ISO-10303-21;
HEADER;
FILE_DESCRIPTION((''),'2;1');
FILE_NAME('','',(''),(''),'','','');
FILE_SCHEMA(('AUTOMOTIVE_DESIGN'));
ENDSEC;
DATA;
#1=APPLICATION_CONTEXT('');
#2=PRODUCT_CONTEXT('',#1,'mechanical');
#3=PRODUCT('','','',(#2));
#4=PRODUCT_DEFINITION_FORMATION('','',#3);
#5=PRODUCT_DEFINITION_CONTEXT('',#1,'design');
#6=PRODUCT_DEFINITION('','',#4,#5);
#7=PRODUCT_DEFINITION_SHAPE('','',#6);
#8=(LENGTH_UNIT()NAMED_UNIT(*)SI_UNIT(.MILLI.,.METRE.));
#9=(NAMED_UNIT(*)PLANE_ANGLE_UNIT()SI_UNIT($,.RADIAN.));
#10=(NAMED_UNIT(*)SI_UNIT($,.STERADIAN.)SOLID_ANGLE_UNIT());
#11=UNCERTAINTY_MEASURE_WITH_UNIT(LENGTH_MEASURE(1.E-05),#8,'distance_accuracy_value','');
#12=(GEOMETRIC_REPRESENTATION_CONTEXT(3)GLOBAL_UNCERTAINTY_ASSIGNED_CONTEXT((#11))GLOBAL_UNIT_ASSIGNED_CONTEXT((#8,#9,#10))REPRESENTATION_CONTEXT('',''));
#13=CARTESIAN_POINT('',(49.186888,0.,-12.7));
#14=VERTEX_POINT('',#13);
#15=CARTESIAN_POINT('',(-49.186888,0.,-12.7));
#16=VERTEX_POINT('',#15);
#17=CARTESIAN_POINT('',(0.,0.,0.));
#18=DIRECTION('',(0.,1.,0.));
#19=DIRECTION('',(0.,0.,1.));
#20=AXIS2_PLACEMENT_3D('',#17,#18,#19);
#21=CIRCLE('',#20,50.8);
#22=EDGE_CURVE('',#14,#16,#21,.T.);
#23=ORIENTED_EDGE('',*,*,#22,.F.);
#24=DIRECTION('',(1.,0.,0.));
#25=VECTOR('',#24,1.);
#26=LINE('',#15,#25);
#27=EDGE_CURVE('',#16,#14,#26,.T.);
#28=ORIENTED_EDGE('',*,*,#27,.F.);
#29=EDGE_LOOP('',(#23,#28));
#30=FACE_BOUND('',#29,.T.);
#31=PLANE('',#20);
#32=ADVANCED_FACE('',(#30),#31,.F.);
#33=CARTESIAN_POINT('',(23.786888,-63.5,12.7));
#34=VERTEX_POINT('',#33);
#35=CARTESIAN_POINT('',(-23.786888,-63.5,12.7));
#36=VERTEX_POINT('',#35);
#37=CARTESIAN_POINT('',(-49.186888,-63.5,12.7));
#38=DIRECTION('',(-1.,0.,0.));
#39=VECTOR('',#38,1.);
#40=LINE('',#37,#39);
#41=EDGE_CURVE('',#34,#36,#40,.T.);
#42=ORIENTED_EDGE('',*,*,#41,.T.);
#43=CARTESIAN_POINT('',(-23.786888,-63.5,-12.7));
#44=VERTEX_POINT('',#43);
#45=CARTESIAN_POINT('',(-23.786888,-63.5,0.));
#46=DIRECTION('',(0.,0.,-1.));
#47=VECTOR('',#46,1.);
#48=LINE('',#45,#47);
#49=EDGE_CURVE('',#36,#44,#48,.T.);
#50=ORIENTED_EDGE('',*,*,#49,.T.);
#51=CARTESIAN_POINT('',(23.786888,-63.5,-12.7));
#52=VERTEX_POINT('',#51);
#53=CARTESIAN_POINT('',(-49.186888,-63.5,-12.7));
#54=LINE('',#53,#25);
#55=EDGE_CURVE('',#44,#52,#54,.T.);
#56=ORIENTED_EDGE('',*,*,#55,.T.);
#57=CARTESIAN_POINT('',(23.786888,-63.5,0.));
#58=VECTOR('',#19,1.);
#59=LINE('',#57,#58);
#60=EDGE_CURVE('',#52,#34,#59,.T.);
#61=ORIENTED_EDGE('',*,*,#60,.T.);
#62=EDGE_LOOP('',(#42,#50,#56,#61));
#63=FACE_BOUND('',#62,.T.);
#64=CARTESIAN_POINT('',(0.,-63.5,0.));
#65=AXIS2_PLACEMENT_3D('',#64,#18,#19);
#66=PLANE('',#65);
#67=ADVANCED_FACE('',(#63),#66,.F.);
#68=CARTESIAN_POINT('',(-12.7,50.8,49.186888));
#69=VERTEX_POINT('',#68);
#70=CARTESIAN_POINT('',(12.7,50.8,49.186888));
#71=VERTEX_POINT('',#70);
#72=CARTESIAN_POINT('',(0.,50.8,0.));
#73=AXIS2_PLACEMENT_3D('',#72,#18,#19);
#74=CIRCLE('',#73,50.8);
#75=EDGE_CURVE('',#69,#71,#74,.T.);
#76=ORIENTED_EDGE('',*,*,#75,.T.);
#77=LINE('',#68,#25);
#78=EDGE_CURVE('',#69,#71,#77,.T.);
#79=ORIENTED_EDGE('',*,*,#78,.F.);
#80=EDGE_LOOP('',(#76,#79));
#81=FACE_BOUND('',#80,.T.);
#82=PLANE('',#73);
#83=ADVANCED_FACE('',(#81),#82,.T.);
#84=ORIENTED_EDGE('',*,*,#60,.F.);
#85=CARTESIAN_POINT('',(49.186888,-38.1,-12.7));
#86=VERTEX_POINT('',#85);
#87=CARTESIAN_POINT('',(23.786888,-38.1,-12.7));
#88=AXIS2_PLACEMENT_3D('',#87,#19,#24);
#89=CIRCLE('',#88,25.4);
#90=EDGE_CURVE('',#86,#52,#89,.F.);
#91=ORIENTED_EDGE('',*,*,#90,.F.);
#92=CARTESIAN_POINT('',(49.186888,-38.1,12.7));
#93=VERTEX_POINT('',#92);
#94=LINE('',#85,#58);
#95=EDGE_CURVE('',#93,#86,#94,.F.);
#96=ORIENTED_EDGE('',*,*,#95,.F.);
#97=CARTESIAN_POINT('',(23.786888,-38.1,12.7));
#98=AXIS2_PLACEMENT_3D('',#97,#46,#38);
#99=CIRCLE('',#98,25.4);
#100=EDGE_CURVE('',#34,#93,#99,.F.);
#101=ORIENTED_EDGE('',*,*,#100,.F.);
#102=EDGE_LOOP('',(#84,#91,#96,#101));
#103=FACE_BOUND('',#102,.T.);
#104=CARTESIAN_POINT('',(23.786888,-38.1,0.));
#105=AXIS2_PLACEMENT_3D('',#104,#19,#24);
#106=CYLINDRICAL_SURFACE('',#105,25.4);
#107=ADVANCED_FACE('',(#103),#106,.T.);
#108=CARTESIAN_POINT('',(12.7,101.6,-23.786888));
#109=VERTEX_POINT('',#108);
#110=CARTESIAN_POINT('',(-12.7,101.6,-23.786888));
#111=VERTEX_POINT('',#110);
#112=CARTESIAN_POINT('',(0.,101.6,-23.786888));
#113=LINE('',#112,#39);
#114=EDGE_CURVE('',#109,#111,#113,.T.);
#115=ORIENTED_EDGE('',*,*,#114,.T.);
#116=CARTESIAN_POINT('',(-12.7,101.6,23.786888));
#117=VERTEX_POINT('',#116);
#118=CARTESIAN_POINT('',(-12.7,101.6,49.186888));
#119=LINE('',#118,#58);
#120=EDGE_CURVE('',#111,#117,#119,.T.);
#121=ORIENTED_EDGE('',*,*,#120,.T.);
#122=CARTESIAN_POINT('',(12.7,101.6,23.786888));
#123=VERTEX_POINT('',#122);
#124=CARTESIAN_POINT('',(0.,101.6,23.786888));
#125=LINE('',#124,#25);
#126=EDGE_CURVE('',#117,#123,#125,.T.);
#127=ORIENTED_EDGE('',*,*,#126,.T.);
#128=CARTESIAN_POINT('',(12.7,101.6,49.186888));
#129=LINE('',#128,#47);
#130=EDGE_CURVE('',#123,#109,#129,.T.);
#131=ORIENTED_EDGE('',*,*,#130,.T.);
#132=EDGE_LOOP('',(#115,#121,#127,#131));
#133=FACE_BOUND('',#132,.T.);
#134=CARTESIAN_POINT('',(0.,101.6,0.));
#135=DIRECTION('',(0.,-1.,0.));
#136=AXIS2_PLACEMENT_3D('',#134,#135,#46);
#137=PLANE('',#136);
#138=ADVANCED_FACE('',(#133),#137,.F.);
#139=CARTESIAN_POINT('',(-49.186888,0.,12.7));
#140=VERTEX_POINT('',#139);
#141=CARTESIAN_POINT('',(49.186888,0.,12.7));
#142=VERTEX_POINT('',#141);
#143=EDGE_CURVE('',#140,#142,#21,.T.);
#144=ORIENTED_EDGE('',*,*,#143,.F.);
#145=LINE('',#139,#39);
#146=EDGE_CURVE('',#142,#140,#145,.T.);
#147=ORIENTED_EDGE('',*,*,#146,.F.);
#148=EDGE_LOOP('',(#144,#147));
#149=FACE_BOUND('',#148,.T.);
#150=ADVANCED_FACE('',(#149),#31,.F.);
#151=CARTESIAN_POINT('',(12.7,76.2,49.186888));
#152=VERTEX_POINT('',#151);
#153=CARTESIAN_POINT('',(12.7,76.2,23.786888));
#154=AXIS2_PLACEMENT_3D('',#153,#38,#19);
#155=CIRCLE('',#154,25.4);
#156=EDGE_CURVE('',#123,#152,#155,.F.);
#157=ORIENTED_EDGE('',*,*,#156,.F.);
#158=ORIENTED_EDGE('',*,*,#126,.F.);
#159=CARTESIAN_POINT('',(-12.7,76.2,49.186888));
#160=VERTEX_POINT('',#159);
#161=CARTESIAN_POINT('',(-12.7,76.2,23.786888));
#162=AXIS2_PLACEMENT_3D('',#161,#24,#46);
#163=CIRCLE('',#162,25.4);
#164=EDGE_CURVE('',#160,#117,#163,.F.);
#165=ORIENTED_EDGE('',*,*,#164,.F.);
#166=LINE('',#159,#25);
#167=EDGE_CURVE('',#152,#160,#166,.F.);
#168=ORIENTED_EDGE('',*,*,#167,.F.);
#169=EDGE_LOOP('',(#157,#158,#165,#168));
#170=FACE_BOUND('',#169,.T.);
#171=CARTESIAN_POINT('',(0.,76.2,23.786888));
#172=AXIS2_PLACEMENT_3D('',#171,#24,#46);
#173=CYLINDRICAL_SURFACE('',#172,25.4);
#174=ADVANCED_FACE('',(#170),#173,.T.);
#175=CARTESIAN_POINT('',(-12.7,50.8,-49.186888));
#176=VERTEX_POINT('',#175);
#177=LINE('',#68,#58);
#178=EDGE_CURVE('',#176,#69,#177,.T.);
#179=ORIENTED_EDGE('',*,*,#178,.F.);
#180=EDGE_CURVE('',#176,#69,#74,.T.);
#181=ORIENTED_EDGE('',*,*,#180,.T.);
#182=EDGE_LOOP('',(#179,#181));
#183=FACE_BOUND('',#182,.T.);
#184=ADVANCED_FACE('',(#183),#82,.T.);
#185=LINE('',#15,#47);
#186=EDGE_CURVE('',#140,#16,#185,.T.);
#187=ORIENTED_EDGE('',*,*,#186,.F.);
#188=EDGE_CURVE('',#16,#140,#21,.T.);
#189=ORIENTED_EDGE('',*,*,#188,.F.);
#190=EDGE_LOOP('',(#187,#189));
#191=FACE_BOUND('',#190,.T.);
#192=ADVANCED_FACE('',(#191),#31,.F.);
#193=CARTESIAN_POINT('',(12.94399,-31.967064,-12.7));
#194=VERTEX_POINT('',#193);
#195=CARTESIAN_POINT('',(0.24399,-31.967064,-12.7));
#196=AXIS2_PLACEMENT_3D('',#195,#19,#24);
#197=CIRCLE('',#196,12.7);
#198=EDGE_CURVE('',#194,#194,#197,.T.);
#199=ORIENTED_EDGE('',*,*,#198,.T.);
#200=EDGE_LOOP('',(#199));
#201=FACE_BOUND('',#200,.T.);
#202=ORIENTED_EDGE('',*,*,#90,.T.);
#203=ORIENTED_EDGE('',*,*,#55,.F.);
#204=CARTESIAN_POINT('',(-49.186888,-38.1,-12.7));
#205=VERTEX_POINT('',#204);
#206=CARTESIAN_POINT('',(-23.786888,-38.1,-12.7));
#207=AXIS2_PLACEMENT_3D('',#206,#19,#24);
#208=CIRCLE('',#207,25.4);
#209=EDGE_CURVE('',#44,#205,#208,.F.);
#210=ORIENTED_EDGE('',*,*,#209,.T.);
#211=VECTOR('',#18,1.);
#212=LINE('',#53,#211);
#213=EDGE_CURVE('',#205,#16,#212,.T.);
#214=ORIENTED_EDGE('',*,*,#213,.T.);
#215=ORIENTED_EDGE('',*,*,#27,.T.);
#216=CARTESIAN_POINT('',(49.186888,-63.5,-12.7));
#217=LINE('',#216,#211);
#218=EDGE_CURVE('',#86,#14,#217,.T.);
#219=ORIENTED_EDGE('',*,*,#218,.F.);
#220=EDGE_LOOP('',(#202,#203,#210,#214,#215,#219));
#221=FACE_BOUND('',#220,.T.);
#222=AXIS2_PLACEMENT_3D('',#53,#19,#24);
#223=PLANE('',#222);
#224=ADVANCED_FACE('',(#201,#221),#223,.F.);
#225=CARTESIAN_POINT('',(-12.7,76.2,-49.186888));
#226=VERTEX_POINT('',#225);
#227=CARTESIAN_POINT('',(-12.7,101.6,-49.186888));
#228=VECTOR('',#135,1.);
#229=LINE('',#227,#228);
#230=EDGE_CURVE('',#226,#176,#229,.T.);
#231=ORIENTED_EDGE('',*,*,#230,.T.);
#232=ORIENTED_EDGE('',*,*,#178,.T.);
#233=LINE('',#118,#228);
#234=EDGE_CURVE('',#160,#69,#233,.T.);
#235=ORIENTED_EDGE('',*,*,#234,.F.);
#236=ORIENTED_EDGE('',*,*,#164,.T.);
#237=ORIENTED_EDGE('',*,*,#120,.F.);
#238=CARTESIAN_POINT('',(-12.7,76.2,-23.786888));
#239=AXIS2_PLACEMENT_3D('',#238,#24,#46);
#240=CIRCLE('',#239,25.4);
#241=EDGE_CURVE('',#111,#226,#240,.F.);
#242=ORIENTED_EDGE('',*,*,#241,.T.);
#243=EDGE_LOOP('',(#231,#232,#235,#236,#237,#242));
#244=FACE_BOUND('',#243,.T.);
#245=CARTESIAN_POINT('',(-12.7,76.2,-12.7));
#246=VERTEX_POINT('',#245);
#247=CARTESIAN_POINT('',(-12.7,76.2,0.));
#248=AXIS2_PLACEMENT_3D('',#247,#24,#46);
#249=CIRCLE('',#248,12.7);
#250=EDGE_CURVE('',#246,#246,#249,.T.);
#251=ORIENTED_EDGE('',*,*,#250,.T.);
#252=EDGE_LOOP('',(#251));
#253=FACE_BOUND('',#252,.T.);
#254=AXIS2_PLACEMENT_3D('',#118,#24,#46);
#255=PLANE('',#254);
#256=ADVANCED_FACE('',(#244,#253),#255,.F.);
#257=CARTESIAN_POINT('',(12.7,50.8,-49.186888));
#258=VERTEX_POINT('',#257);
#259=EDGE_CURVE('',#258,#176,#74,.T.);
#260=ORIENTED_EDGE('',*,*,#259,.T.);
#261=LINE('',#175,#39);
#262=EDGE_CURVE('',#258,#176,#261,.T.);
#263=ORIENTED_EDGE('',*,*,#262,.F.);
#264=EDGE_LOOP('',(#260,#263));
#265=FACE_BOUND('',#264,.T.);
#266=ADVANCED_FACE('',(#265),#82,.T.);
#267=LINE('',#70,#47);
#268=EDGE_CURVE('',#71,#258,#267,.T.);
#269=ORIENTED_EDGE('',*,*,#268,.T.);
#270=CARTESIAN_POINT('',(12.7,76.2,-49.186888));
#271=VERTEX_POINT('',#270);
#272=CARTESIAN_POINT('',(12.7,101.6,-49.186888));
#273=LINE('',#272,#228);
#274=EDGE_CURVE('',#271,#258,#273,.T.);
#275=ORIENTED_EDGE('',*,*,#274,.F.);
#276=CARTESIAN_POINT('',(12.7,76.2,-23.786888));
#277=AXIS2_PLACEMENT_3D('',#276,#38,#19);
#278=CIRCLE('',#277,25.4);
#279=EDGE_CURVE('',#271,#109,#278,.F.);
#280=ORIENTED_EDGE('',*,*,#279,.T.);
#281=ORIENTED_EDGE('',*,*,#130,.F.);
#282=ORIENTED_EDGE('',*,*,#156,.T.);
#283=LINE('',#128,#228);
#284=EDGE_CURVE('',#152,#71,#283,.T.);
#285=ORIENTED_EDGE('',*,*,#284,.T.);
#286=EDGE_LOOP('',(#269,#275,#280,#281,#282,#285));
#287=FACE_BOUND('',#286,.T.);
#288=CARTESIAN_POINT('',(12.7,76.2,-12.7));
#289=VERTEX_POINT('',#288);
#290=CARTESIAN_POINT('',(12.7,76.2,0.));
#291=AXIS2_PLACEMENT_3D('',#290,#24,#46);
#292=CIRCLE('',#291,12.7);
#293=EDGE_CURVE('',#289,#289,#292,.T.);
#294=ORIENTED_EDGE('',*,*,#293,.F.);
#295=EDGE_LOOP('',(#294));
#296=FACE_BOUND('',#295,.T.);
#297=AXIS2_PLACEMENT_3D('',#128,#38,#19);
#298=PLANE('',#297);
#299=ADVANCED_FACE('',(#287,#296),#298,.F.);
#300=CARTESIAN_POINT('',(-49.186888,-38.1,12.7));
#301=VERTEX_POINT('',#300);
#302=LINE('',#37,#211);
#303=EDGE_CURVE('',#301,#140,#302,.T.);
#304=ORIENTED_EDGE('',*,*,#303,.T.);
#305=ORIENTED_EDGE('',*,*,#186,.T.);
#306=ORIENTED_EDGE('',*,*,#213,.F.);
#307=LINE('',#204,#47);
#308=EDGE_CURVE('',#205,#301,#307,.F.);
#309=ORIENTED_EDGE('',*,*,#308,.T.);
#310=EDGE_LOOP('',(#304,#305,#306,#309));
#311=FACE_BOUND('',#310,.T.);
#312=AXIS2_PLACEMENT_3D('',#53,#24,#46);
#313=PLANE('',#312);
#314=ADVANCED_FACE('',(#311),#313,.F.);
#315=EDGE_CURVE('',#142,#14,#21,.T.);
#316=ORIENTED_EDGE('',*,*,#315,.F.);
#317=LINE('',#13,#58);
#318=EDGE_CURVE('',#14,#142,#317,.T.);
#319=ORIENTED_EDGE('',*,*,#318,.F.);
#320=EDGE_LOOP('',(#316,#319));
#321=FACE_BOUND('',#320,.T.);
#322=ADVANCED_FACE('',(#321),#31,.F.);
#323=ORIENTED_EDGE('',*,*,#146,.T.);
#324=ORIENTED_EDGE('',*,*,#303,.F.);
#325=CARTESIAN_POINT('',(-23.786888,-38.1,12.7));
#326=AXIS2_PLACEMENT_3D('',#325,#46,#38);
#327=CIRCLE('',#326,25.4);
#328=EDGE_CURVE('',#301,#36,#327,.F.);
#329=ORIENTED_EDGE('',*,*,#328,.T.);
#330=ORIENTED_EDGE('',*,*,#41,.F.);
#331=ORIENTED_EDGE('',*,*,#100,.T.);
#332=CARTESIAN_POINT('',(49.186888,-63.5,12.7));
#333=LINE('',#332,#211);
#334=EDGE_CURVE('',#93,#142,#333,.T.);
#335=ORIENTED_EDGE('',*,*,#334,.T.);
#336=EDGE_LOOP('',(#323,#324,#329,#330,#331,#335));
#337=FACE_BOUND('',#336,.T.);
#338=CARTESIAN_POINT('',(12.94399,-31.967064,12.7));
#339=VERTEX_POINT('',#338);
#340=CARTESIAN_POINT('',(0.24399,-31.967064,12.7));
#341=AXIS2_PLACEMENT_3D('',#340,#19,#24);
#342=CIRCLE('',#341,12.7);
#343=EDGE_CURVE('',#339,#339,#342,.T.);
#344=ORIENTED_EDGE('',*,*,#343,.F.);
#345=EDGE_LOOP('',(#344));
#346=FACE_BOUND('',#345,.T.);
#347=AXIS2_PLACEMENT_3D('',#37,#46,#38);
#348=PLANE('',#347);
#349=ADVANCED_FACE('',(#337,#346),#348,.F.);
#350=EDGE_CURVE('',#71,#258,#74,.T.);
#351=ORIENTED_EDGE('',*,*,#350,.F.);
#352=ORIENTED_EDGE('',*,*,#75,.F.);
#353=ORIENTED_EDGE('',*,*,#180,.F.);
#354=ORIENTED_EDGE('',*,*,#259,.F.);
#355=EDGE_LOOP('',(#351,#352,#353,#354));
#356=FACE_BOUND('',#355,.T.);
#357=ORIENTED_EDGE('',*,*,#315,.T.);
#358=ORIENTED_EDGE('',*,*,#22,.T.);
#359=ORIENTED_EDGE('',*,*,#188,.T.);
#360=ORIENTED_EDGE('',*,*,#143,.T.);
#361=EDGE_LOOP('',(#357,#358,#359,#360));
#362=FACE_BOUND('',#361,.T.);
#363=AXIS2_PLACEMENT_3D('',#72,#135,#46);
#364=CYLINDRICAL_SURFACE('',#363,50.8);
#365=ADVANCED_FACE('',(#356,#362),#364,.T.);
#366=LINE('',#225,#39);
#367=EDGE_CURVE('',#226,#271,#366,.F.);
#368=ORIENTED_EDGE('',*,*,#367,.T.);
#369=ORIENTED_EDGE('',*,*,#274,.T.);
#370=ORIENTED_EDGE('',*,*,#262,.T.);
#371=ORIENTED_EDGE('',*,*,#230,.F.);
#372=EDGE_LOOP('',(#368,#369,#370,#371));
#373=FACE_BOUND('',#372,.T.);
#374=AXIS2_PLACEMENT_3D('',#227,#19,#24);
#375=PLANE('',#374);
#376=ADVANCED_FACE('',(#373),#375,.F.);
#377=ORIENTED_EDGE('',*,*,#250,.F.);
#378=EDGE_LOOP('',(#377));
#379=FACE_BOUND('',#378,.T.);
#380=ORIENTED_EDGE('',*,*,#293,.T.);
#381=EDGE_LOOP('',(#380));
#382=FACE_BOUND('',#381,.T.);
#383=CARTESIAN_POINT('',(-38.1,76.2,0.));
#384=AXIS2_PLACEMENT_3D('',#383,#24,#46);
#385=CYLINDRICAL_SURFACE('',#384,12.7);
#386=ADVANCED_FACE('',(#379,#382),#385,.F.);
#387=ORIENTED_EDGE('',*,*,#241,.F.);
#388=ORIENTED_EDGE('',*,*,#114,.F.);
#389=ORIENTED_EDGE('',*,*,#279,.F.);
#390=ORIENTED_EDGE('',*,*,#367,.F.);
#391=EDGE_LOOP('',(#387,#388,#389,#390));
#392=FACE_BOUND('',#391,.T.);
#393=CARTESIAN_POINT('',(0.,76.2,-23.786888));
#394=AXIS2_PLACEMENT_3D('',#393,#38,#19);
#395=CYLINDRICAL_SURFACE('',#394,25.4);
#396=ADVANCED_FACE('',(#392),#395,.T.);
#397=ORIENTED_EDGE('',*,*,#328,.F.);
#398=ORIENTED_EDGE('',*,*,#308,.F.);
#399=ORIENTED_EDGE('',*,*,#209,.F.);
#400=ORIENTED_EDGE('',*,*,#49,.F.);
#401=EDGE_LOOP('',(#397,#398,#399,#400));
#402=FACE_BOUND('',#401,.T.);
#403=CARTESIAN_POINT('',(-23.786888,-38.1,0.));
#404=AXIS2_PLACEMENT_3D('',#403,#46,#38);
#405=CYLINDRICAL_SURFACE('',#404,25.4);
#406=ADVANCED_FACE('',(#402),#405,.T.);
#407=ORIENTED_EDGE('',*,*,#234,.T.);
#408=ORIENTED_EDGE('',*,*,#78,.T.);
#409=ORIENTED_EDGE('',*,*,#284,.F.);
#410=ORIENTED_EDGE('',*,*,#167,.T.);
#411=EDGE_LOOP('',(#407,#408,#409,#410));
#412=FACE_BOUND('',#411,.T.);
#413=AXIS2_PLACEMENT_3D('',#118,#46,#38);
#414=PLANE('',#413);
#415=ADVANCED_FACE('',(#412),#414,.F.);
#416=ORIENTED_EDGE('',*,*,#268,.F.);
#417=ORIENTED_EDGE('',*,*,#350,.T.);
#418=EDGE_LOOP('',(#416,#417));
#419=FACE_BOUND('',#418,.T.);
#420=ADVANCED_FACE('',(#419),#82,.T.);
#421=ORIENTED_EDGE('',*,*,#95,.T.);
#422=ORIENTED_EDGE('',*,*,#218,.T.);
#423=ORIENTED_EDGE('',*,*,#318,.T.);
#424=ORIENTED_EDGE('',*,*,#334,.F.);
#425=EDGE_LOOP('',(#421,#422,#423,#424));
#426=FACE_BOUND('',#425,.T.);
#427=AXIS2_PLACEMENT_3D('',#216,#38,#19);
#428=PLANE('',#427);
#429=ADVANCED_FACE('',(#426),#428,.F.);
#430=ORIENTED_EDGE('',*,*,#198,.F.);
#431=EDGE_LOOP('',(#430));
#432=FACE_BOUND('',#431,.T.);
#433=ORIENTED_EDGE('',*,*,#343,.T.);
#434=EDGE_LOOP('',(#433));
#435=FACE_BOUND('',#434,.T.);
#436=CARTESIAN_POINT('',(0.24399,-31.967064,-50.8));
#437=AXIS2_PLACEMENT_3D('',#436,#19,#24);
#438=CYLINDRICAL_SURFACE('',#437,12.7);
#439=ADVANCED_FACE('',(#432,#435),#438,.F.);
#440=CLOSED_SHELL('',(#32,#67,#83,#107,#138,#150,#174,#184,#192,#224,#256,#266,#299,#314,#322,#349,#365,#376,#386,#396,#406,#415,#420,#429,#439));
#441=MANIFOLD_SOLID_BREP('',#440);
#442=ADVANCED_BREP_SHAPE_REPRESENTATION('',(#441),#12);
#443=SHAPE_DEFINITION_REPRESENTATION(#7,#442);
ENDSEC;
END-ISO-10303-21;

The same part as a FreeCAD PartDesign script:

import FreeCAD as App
import Part
import Sketcher
from FreeCAD import Vector
Q = App.Units.Quantity


def edges_at(feature, points):
    """Names of the edges that pass closest to the given points."""
    edges = feature.Shape.Edges
    near = lambda p: min(range(len(edges)), key=lambda i: edges[i].distToShape(Part.Vertex(*p))[0])
    return sorted({f"Edge{near(p) + 1}" for p in points})


def add_polygon(sketch, points):
    """Adds a closed chain of lines whose ends are joined by coincident constraints."""
    first, n = sketch.GeometryCount, len(points)
    for a, b in zip(points, points[1:] + points[:1]):
        sketch.addGeometry(Part.LineSegment(App.Vector(*a, 0), App.Vector(*b, 0)), False)
    for i in range(n):
        sketch.addConstraint(Sketcher.Constraint("Coincident", first + i, 2, first + (i + 1) % n, 1))

doc = App.newDocument("Part")
body = doc.addObject("PartDesign::Body", "Body")

sketch1 = body.newObject("Sketcher::SketchObject", "Sketch")
sketch1.AttachmentSupport = (doc.getObject("XZ_Plane"), [""])
sketch1.MapMode = "FlatFace"
sketch1.addGeometry(Part.Circle(Vector(0, 0, 0), Vector(0, 0, 1), 50.8), False)
sketch1.addConstraint([
    Sketcher.Constraint("Coincident", 0, 3, -1, 1),
    Sketcher.Constraint("Diameter", 0, Q("4 in")),
])
pad1 = body.newObject("PartDesign::Pad", "Pad")
pad1.Profile = sketch1
pad1.Length = Q("2 in")
pad1.Reversed = True

sketch2 = body.newObject("Sketcher::SketchObject", "Sketch001")
sketch2.AttachmentSupport = (doc.getObject("XZ_Plane"), [""])
sketch2.MapMode = "FlatFace"
add_polygon(sketch2, [(-49.186888, 12.7), (-49.186888, -12.7), (49.186888, -12.7), (49.186888, 12.7)])
sketch2.addConstraint([
    Sketcher.Constraint("Vertical", 0),
    Sketcher.Constraint("Horizontal", 1),
    Sketcher.Constraint("Vertical", 2),
    Sketcher.Constraint("Horizontal", 3),
    Sketcher.Constraint("Symmetric", 0, 2, 2, 2, -1, 1),
    Sketcher.Constraint("DistanceY", 0, 2, 0, 1, Q("1 in")),
    Sketcher.Constraint("DistanceX", 1, 1, 1, 2, 98.373777),
])
pad2 = body.newObject("PartDesign::Pad", "Pad001")
pad2.Profile = sketch2
pad2.Length = Q("2.5 in")

sketch3 = body.newObject("Sketcher::SketchObject", "Sketch002")
sketch3.AttachmentSupport = (doc.getObject("XY_Plane"), [""])
sketch3.MapMode = "FlatFace"
sketch3.AttachmentOffset = App.Placement(Vector(0, 0, 0.5 * 25.4), App.Rotation())
sketch3.addGeometry(Part.Circle(Vector(0.24399, -31.967064, 0), Vector(0, 0, 1), 12.7), False)
sketch3.addConstraint([
    Sketcher.Constraint("Diameter", 0, Q("1 in")),
    Sketcher.Constraint("DistanceX", -1, 1, 0, 3, 0.24399),
    Sketcher.Constraint("DistanceY", 0, 3, -1, 1, 31.967064),
])
pocket1 = body.newObject("PartDesign::Pocket", "Pocket")
pocket1.Profile = sketch3
pocket1.Type = "ThroughAll"
doc.recompute()

fillet = body.newObject("PartDesign::Fillet", "Fillet")
fillet.Base = (pocket1, edges_at(pocket1, [(-49.187, -63.5, 0)]))
fillet.Radius = Q("1 in")
doc.recompute()

fillet2 = body.newObject("PartDesign::Fillet", "Fillet001")
fillet2.Base = (fillet, edges_at(fillet, [(49.187, -63.5, 0)]))
fillet2.Radius = Q("1 in")

sketch4 = body.newObject("Sketcher::SketchObject", "Sketch003")
sketch4.AttachmentSupport = (doc.getObject("XZ_Plane"), [""])
sketch4.MapMode = "FlatFace"
sketch4.AttachmentOffset = App.Placement(Vector(0, 0, -2 * 25.4), App.Rotation())
add_polygon(sketch4, [(-12.7, -49.186888), (-12.7, 49.186888), (12.7, 49.186888), (12.7, -49.186888)])
sketch4.addConstraint([
    Sketcher.Constraint("Vertical", 0),
    Sketcher.Constraint("Horizontal", 1),
    Sketcher.Constraint("Vertical", 2),
    Sketcher.Constraint("Horizontal", 3),
    Sketcher.Constraint("Symmetric", 0, 2, 2, 2, -1, 1),
    Sketcher.Constraint("DistanceX", 1, 1, 1, 2, Q("1 in")),
    Sketcher.Constraint("DistanceY", 0, 1, 0, 2, 98.373777),
])
pad3 = body.newObject("PartDesign::Pad", "Pad002")
pad3.Profile = sketch4
pad3.Length = Q("2 in")
pad3.Reversed = True

sketch5 = body.newObject("Sketcher::SketchObject", "Sketch004")
sketch5.AttachmentSupport = (doc.getObject("YZ_Plane"), [""])
sketch5.MapMode = "FlatFace"
sketch5.AttachmentOffset = App.Placement(Vector(0, 0, 0.5 * 25.4), App.Rotation())
sketch5.addGeometry(Part.Circle(Vector(76.2, 0, 0), Vector(0, 0, 1), 12.7), False)
sketch5.addConstraint([
    Sketcher.Constraint("PointOnObject", 0, 3, -1),
    Sketcher.Constraint("Diameter", 0, Q("1 in")),
    Sketcher.Constraint("DistanceX", -1, 1, 0, 3, Q("3 in")),
])
pocket2 = body.newObject("PartDesign::Pocket", "Pocket001")
pocket2.Profile = sketch5
pocket2.Length = Q("2 in")
doc.recompute()

fillet3 = body.newObject("PartDesign::Fillet", "Fillet002")
fillet3.Base = (pocket2, edges_at(pocket2, [(0, 101.6, -49.187), (0, 101.6, 49.187)]))
fillet3.Radius = Q("1 in")

doc.recompute()
